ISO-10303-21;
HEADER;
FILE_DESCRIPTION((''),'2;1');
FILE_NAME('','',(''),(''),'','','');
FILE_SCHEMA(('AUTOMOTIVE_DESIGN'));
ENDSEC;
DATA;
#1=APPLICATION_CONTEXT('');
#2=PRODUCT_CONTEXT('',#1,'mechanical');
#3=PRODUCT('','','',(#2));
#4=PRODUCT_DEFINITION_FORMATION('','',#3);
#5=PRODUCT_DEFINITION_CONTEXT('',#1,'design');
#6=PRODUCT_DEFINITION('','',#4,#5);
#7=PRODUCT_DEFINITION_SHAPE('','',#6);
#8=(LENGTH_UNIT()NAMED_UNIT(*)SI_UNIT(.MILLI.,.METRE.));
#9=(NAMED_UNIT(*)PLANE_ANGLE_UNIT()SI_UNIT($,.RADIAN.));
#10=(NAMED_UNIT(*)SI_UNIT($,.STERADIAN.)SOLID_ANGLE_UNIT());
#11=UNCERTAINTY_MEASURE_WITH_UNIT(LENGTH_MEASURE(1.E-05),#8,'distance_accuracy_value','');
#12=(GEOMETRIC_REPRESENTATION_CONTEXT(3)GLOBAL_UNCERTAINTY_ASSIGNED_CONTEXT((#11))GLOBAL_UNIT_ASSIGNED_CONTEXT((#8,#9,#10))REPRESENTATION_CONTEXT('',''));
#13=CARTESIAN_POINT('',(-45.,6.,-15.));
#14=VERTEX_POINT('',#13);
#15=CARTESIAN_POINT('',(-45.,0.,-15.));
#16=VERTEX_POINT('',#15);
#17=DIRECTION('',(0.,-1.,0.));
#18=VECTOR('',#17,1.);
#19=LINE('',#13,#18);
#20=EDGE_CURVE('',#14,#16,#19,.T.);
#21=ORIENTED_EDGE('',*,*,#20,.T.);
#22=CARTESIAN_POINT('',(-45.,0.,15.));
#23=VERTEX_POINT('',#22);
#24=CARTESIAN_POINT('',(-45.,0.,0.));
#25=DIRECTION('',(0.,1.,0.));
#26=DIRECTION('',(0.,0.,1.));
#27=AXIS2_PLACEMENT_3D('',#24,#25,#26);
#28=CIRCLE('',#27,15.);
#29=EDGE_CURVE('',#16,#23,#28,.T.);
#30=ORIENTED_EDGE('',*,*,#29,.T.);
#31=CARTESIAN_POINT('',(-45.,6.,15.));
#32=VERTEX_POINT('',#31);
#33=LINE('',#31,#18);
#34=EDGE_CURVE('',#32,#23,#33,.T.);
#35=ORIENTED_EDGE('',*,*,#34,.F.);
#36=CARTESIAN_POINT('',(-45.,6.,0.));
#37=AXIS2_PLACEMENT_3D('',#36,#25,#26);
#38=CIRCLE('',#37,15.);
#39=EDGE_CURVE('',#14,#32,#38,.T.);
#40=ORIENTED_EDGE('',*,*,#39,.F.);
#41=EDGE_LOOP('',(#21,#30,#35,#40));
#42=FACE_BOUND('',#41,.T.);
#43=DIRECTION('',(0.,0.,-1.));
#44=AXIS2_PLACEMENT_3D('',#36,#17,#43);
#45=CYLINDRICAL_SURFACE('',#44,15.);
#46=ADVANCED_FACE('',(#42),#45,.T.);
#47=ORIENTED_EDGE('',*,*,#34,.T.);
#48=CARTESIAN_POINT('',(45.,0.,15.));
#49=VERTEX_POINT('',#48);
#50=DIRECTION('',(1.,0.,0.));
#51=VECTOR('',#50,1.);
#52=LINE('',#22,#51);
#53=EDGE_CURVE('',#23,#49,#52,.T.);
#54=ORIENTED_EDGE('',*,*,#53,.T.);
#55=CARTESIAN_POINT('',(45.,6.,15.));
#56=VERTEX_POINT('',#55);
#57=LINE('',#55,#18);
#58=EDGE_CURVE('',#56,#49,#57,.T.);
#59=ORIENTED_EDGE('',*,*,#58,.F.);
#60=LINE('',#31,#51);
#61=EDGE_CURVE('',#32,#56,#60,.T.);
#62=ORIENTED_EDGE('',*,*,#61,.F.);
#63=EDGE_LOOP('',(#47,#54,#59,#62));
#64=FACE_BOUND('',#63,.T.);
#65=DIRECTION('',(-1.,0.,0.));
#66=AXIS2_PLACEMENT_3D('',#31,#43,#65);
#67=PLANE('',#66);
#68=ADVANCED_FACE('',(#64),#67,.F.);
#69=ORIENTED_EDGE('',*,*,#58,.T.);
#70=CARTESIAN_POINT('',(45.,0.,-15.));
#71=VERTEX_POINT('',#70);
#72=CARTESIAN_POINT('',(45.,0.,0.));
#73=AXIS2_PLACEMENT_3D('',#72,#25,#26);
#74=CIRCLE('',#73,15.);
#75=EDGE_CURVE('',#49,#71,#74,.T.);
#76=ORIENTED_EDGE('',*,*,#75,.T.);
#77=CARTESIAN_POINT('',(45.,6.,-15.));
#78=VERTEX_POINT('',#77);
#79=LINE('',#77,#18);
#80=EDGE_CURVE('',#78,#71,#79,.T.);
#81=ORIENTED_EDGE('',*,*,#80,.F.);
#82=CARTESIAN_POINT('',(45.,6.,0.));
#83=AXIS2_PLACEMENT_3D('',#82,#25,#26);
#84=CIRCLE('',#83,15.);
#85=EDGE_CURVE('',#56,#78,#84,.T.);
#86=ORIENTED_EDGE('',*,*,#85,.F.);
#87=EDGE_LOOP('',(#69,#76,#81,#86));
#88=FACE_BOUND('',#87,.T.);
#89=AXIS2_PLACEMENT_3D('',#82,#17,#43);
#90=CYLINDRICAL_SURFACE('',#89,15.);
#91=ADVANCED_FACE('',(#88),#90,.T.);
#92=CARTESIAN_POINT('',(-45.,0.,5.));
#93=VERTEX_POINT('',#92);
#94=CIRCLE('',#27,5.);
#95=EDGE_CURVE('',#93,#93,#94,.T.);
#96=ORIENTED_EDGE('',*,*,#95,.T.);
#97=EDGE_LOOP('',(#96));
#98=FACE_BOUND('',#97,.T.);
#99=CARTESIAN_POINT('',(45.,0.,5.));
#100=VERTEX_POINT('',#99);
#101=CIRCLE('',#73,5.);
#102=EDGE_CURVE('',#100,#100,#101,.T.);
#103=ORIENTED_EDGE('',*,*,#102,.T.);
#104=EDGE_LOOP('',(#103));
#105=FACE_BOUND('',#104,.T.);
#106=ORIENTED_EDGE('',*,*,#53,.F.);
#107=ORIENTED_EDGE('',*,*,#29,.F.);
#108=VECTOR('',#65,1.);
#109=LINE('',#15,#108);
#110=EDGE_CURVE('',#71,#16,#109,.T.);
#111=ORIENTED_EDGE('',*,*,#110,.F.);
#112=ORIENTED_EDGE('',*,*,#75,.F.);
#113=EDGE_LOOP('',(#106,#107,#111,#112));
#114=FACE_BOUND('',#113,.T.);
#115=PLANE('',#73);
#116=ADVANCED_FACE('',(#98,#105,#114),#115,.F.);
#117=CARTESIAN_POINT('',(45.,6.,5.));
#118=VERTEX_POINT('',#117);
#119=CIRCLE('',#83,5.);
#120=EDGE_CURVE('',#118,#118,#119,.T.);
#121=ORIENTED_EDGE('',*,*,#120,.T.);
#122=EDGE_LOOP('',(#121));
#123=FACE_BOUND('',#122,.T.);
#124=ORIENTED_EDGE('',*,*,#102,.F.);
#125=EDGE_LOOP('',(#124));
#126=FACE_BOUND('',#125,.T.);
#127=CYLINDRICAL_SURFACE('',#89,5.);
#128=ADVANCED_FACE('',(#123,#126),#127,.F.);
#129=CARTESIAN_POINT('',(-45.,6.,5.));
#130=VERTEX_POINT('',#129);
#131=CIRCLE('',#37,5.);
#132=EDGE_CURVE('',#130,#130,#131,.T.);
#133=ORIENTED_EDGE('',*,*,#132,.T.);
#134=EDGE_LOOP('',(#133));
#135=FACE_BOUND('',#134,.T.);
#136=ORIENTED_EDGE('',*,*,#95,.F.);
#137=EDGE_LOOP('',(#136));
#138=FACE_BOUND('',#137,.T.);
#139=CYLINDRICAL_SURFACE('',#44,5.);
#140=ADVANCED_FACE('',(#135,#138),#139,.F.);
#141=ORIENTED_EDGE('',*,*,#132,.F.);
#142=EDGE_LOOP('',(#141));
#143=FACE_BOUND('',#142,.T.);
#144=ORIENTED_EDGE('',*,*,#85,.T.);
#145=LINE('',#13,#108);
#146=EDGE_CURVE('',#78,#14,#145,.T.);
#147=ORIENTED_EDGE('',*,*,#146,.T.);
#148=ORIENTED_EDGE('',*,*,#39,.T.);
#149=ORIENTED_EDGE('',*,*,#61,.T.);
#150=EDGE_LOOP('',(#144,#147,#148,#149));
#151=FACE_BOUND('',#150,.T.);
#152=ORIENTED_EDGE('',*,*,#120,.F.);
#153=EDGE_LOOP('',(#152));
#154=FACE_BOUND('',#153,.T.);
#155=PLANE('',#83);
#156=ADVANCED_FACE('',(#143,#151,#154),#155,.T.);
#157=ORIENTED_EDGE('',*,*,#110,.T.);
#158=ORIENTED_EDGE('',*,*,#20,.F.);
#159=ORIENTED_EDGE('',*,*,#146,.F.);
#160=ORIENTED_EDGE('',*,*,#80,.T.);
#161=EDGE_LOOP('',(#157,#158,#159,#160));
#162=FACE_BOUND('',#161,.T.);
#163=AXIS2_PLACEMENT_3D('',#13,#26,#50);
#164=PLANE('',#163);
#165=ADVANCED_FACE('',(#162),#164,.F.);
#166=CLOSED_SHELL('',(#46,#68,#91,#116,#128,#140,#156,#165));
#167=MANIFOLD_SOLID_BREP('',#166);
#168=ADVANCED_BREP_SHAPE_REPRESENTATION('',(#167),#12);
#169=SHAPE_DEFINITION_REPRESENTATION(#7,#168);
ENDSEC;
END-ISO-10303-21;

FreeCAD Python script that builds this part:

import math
import FreeCAD as App
import Part
import Sketcher
Q = App.Units.Quantity

doc = App.newDocument("Part")
body = doc.addObject("PartDesign::Body", "Body")

sketch1 = body.newObject("Sketcher::SketchObject", "Sketch")
sketch1.AttachmentSupport = (doc.getObject("XZ_Plane"), [""])
sketch1.MapMode = "FlatFace"
sketch1.addGeometry(Part.LineSegment(App.Vector(45, -15, 0), App.Vector(-45, -15, 0)), False)
sketch1.addGeometry(Part.ArcOfCircle(Part.Circle(App.Vector(-45, 0, 0), App.Vector(0, 0, 1), 15), math.radians(90), math.radians(270)), False)
sketch1.addGeometry(Part.LineSegment(App.Vector(-45, 15, 0), App.Vector(45, 15, 0)), False)
sketch1.addGeometry(Part.ArcOfCircle(Part.Circle(App.Vector(45, 0, 0), App.Vector(0, 0, 1), 15), math.radians(-90), math.radians(90)), False)
sketch1.addGeometry(Part.Circle(App.Vector(45, 0, 0), App.Vector(0, 0, 1), 5), False)
sketch1.addGeometry(Part.Circle(App.Vector(-45, 0, 0), App.Vector(0, 0, 1), 5), False)
sketch1.addConstraint(Sketcher.Constraint("Tangent", 0, 2, 1, 2))
sketch1.addConstraint(Sketcher.Constraint("Tangent", 1, 1, 2, 1))
sketch1.addConstraint(Sketcher.Constraint("Tangent", 2, 2, 3, 2))
sketch1.addConstraint(Sketcher.Constraint("Tangent", 3, 1, 0, 1))
sketch1.addConstraint(Sketcher.Constraint("Horizontal", 0))
sketch1.addConstraint(Sketcher.Constraint("Horizontal", 2))
sketch1.addConstraint(Sketcher.Constraint("Coincident", 4, 3, 3, 3))
sketch1.addConstraint(Sketcher.Constraint("Coincident", 5, 3, 1, 3))
sketch1.addConstraint(Sketcher.Constraint("Equal", 4, 5))
sketch1.addConstraint(Sketcher.Constraint("Symmetric", 1, 3, 3, 3, -1, 1))
sketch1.addConstraint(Sketcher.Constraint("Diameter", 4, Q("10 mm")))
sketch1.addConstraint(Sketcher.Constraint("Radius", 1, Q("15 mm")))
sketch1.addConstraint(Sketcher.Constraint("DistanceX", 0, 2, 0, 1, Q("90 mm")))
pad1 = body.newObject("PartDesign::Pad", "Pad")
pad1.Profile = sketch1
pad1.Length = 6
pad1.Reversed = True

doc.recompute()
